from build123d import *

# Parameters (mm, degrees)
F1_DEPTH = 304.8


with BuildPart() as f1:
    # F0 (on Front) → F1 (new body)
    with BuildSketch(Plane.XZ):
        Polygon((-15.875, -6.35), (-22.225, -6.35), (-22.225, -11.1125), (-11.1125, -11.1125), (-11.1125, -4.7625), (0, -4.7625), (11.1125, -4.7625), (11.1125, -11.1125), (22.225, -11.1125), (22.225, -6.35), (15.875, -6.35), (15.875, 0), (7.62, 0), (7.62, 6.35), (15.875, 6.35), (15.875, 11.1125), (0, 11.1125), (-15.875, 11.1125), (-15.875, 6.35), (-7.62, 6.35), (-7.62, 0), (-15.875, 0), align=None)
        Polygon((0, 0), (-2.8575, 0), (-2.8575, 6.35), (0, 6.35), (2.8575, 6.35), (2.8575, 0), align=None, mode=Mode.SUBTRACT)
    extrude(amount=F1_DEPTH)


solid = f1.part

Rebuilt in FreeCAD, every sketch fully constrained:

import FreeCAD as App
import Part
import Sketcher

V = App.Vector
Q = App.Units.Quantity


def add_polygon(sketch, points):
    """Adds a closed chain of lines whose ends are joined by coincident constraints."""
    first, n = sketch.GeometryCount, len(points)
    for a, b in zip(points, points[1:] + points[:1]):
        sketch.addGeometry(Part.LineSegment(App.Vector(*a, 0), App.Vector(*b, 0)), False)
    for i in range(n):
        sketch.addConstraint(Sketcher.Constraint("Coincident", first + i, 2, first + (i + 1) % n, 1))

doc = App.newDocument("Part")
body = doc.addObject("PartDesign::Body", "Body")

# Sketch on XZ plane
sketch1 = body.newObject("Sketcher::SketchObject", "Sketch")
sketch1.AttachmentSupport = (doc.getObject("XZ_Plane"), [""])
sketch1.MapMode = "FlatFace"
add_polygon(sketch1, [(-15.875, -6.35), (-22.225, -6.35), (-22.225, -11.1125), (-11.1125, -11.1125), (-11.1125, -4.7625), (11.1125, -4.7625), (11.1125, -11.1125), (22.225, -11.1125), (22.225, -6.35), (15.875, -6.35), (15.875, 0), (7.62, 0), (7.62, 6.35), (15.875, 6.35), (15.875, 11.1125), (-15.875, 11.1125), (-15.875, 6.35), (-7.62, 6.35), (-7.62, 0), (-15.875, 0)])  # lines 0-19
add_polygon(sketch1, [(2.8575, 0), (-2.8575, 0), (-2.8575, 6.35), (2.8575, 6.35)])  # lines 20-23
sketch1.addConstraint(Sketcher.Constraint("Horizontal", 0))
sketch1.addConstraint(Sketcher.Constraint("Vertical", 1))
sketch1.addConstraint(Sketcher.Constraint("Horizontal", 2))
sketch1.addConstraint(Sketcher.Constraint("Vertical", 3))
sketch1.addConstraint(Sketcher.Constraint("Horizontal", 4))
sketch1.addConstraint(Sketcher.Constraint("Vertical", 5))
sketch1.addConstraint(Sketcher.Constraint("Horizontal", 6))
sketch1.addConstraint(Sketcher.Constraint("Vertical", 7))
sketch1.addConstraint(Sketcher.Constraint("Horizontal", 8))
sketch1.addConstraint(Sketcher.Constraint("Vertical", 9))
sketch1.addConstraint(Sketcher.Constraint("Horizontal", 10))
sketch1.addConstraint(Sketcher.Constraint("Vertical", 11))
sketch1.addConstraint(Sketcher.Constraint("Horizontal", 12))
sketch1.addConstraint(Sketcher.Constraint("Vertical", 13))
sketch1.addConstraint(Sketcher.Constraint("Horizontal", 14))
sketch1.addConstraint(Sketcher.Constraint("Vertical", 15))
sketch1.addConstraint(Sketcher.Constraint("Horizontal", 16))
sketch1.addConstraint(Sketcher.Constraint("Vertical", 17))
sketch1.addConstraint(Sketcher.Constraint("Horizontal", 18))
sketch1.addConstraint(Sketcher.Constraint("Vertical", 19))
sketch1.addConstraint(Sketcher.Constraint("Horizontal", 20))
sketch1.addConstraint(Sketcher.Constraint("Vertical", 21))
sketch1.addConstraint(Sketcher.Constraint("Horizontal", 22))
sketch1.addConstraint(Sketcher.Constraint("Vertical", 23))
sketch1.addConstraint(Sketcher.Constraint("Symmetric", 8, 2, 15, 2, -1, 1))
sketch1.addConstraint(Sketcher.Constraint("Symmetric", 10, 2, 17, 2, -1, 1))
sketch1.addConstraint(Sketcher.Constraint("Symmetric", 12, 2, 19, 2, -1, 1))
sketch1.addConstraint(Sketcher.Constraint("Symmetric", 20, 2, 23, 2, -1, 1))
sketch1.addConstraint(Sketcher.Constraint("Symmetric", 2, 2, 5, 2, -2))
sketch1.addConstraint(Sketcher.Constraint("Symmetric", 0, 2, 7, 2, -2))
sketch1.addConstraint(Sketcher.Constraint("Symmetric", 9, 2, 18, 2, -2))
sketch1.addConstraint(Sketcher.Constraint("Horizontal", 16, 2, 21, 2))
sketch1.addConstraint(Sketcher.Constraint("Equal", 8, 3))
sketch1.addConstraint(Sketcher.Constraint("Equal", 5, 9))
sketch1.addConstraint(Sketcher.Constraint("Equal", 7, 13))
sketch1.addConstraint(Sketcher.Constraint("DistanceX", 0, 2, 0, 1, Q("0.25 in")))
sketch1.addConstraint(Sketcher.Constraint("DistanceX", 14, 2, 14, 1, Q("1.25 in")))
sketch1.addConstraint(Sketcher.Constraint("DistanceX", -1, 1, 10, 2, Q("0.3 in")))
sketch1.addConstraint(Sketcher.Constraint("DistanceX", 2, 1, 2, 2, Q("0.4375 in")))
sketch1.addConstraint(Sketcher.Constraint("DistanceX", 20, 2, 20, 1, Q("0.225 in")))
sketch1.addConstraint(Sketcher.Constraint("DistanceY", 1, 2, 1, 1, Q("0.1875 in")))
pad1 = body.newObject("PartDesign::Pad", "Pad")
pad1.Profile = sketch1
pad1.Length = Q("12 in")

doc.recompute()
